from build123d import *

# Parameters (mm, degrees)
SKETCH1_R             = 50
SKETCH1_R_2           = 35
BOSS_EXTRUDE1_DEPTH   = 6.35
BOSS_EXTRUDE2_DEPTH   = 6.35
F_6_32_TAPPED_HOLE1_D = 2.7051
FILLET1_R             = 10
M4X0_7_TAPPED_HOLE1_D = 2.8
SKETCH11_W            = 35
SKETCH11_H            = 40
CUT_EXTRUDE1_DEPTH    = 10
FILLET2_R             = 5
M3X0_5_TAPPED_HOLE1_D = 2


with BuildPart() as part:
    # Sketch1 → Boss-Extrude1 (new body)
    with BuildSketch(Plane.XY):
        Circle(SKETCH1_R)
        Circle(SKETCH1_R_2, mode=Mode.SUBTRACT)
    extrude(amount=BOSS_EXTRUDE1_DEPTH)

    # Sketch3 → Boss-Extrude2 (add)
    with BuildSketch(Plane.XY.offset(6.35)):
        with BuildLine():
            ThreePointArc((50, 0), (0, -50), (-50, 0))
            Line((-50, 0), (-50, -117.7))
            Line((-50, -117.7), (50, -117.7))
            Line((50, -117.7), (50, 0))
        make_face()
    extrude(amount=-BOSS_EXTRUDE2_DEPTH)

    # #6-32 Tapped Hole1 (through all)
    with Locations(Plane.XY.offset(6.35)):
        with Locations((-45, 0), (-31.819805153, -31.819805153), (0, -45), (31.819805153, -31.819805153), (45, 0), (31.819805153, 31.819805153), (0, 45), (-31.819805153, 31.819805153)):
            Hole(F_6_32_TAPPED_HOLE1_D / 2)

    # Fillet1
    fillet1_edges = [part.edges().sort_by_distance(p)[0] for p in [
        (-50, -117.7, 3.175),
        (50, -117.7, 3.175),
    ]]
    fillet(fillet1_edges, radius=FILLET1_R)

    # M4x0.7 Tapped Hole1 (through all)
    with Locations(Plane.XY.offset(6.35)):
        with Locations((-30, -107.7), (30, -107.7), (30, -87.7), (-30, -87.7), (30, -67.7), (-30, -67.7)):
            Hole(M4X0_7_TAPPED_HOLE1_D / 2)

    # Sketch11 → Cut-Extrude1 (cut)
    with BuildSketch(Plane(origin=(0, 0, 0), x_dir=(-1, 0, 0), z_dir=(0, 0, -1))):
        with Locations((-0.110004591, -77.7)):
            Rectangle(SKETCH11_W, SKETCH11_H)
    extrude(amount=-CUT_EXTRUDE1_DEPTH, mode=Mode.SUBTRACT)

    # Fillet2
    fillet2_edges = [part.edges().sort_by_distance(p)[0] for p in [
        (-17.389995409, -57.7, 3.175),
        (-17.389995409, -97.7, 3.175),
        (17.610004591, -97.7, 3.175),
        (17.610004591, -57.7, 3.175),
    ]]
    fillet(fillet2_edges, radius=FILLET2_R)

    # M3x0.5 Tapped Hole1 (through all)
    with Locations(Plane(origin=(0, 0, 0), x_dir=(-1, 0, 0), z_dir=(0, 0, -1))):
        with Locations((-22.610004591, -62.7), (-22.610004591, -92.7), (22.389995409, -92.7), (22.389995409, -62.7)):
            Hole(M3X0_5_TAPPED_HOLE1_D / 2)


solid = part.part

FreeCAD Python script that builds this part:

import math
import FreeCAD as App
import Part
import Sketcher

V = App.Vector


def edges_at(feature, points):
    """Names of the edges that pass closest to the given points."""
    edges = feature.Shape.Edges
    near = lambda p: min(range(len(edges)), key=lambda i: edges[i].distToShape(Part.Vertex(*p))[0])
    return sorted({f"Edge{near(p) + 1}" for p in points})


def add_polygon(sketch, points):
    """Adds a closed chain of lines whose ends are joined by coincident constraints."""
    first, n = sketch.GeometryCount, len(points)
    for a, b in zip(points, points[1:] + points[:1]):
        sketch.addGeometry(Part.LineSegment(App.Vector(*a, 0), App.Vector(*b, 0)), False)
    for i in range(n):
        sketch.addConstraint(Sketcher.Constraint("Coincident", first + i, 2, first + (i + 1) % n, 1))

doc = App.newDocument("Part")
body = doc.addObject("PartDesign::Body", "Body")

sketch1 = body.newObject("Sketcher::SketchObject", "Sketch")
sketch1.AttachmentSupport = (doc.getObject("XY_Plane"), [""])
sketch1.MapMode = "FlatFace"
sketch1.addGeometry([
    Part.Circle(V(0, 0, 0), V(0, 0, 1), 50),
    Part.Circle(V(0, 0, 0), V(0, 0, 1), 35),
], False)
sketch1.addConstraint([
    Sketcher.Constraint("Coincident", 0, 3, -1, 1),
    Sketcher.Constraint("Coincident", 1, 3, -1, 1),
    Sketcher.Constraint("Diameter", 0, 100.0),
    Sketcher.Constraint("Diameter", 1, 70.0),
])
pad1 = body.newObject("PartDesign::Pad", "Pad")
pad1.Profile = sketch1
pad1.Length = 6.35

sketch2 = body.newObject("Sketcher::SketchObject", "Sketch001")
sketch2.AttachmentSupport = (doc.getObject("XY_Plane"), [""])
sketch2.MapMode = "FlatFace"
sketch2.AttachmentOffset = App.Placement(V(0, 0, 6.35), App.Rotation())
sketch2.addGeometry([
    Part.ArcOfCircle(Part.Circle(V(0, 0, 0), V(0, 0, 1), 50), math.radians(180), math.radians(360)),
    Part.LineSegment(V(-50, 0, 0), V(-50, -118, 0)),
    Part.LineSegment(V(-50, -118, 0), V(50, -118, 0)),
    Part.LineSegment(V(50, -118, 0), V(50, 0, 0)),
], False)
sketch2.addConstraint([
    Sketcher.Constraint("Tangent", 0, 1, 1, 1),
    Sketcher.Constraint("Coincident", 1, 2, 2, 1),
    Sketcher.Constraint("Coincident", 2, 2, 3, 1),
    Sketcher.Constraint("Tangent", 3, 2, 0, 2),
    Sketcher.Constraint("Vertical", 1),
    Sketcher.Constraint("Horizontal", 2),
    Sketcher.Constraint("Vertical", 3),
    Sketcher.Constraint("Coincident", 0, 3, -1, 1),
    Sketcher.Constraint("Radius", 0, 50.0),
    Sketcher.Constraint("DistanceY", 1, 2, 1, 1, 117.7),
])
pad2 = body.newObject("PartDesign::Pad", "Pad001")
pad2.Profile = sketch2
pad2.Length = 6.35
pad2.Reversed = True

sketch3 = body.newObject("Sketcher::SketchObject", "Sketch002")
sketch3.AttachmentSupport = (doc.getObject("XY_Plane"), [""])
sketch3.MapMode = "FlatFace"
sketch3.AttachmentOffset = App.Placement(V(0, 0, 6.35), App.Rotation())
sketch3.addGeometry([
    Part.Circle(V(-45, 0, 0), V(0, 0, 1), 1.4),
    Part.Circle(V(-31.8, -31.8, 0), V(0, 0, 1), 1.4),
    Part.Circle(V(0, -45, 0), V(0, 0, 1), 1.4),
    Part.Circle(V(31.8, -31.8, 0), V(0, 0, 1), 1.4),
    Part.Circle(V(45, 0, 0), V(0, 0, 1), 1.4),
    Part.Circle(V(31.8, 31.8, 0), V(0, 0, 1), 1.4),
    Part.Circle(V(0, 45, 0), V(0, 0, 1), 1.4),
    Part.Circle(V(-31.8, 31.8, 0), V(0, 0, 1), 1.4),
], False)
sketch3.addConstraint([
    Sketcher.Constraint("Equal", 0, 1),
    Sketcher.Constraint("Equal", 1, 2),
    Sketcher.Constraint("Equal", 2, 3),
    Sketcher.Constraint("Equal", 3, 4),
    Sketcher.Constraint("Equal", 4, 5),
    Sketcher.Constraint("Equal", 5, 6),
    Sketcher.Constraint("Equal", 6, 7),
    Sketcher.Constraint("Symmetric", 0, 3, 4, 3, -1, 1),
    Sketcher.Constraint("Symmetric", 1, 3, 5, 3, -1, 1),
    Sketcher.Constraint("Symmetric", 2, 3, 6, 3, -1, 1),
    Sketcher.Constraint("Symmetric", 3, 3, 7, 3, -1, 1),
    Sketcher.Constraint("Symmetric", 1, 3, 3, 3, -2),
    Sketcher.Constraint("PointOnObject", 0, 3, -1),
    Sketcher.Constraint("PointOnObject", 2, 3, -2),
    Sketcher.Constraint("DistanceX", 0, 3, -1, 1, 45.0),
    Sketcher.Constraint("DistanceY", 2, 3, -1, 1, 45.0),
    Sketcher.Constraint("Diameter", 0, 2.7051),
    Sketcher.Constraint("DistanceX", 1, 3, 3, 3, 63.63961),
    Sketcher.Constraint("DistanceY", 3, 3, 5, 3, 63.63961),
])
doc.recompute()
hole = body.newObject("PartDesign::Hole", "Hole")
hole.Profile = sketch3
hole.ThreadType = "None"
hole.Diameter = 2.7051
hole.DepthType = "ThroughAll"
doc.recompute()

fillet = body.newObject("PartDesign::Fillet", "Fillet")
fillet.Base = (hole, edges_at(hole, [(-50, -117.7, 3.175), (50, -117.7, 3.175)]))
fillet.Radius = 10

sketch4 = body.newObject("Sketcher::SketchObject", "Sketch003")
sketch4.AttachmentSupport = (doc.getObject("XY_Plane"), [""])
sketch4.MapMode = "FlatFace"
sketch4.AttachmentOffset = App.Placement(V(0, 0, 6.35), App.Rotation())
sketch4.addGeometry([
    Part.Circle(V(-30, -107.7, 0), V(0, 0, 1), 1.4),
    Part.Circle(V(30, -107.7, 0), V(0, 0, 1), 1.4),
    Part.Circle(V(30, -87.7, 0), V(0, 0, 1), 1.4),
    Part.Circle(V(-30, -87.7, 0), V(0, 0, 1), 1.4),
    Part.Circle(V(30, -67.7, 0), V(0, 0, 1), 1.4),
    Part.Circle(V(-30, -67.7, 0), V(0, 0, 1), 1.4),
], False)
sketch4.addConstraint([
    Sketcher.Constraint("Equal", 0, 1),
    Sketcher.Constraint("Equal", 1, 2),
    Sketcher.Constraint("Equal", 2, 3),
    Sketcher.Constraint("Equal", 3, 4),
    Sketcher.Constraint("Equal", 4, 5),
    Sketcher.Constraint("Symmetric", 0, 3, 1, 3, -2),
    Sketcher.Constraint("Symmetric", 2, 3, 3, 3, -2),
    Sketcher.Constraint("Symmetric", 4, 3, 5, 3, -2),
    Sketcher.Constraint("Vertical", 1, 3, 2, 3),
    Sketcher.Constraint("Vertical", 2, 3, 4, 3),
    Sketcher.Constraint("Diameter", 0, 2.8),
    Sketcher.Constraint("DistanceX", 0, 3, -1, 1, 30.0),
    Sketcher.Constraint("DistanceY", 1, 3, 2, 3, 20.0),
    Sketcher.Constraint("DistanceY", 2, 3, 4, 3, 20.0),
    Sketcher.Constraint("DistanceY", 0, 3, -1, 1, 107.7),
])
doc.recompute()
hole2 = body.newObject("PartDesign::Hole", "Hole001")
hole2.Profile = sketch4
hole2.ThreadType = "None"
hole2.Diameter = 2.8
hole2.DepthType = "ThroughAll"

sketch5 = body.newObject("Sketcher::SketchObject", "Sketch004")
sketch5.AttachmentSupport = (doc.getObject("XY_Plane"), [""])
sketch5.MapMode = "FlatFace"
add_polygon(sketch5, [(18, -58), (18, -98), (-17, -98), (-17, -58)])
sketch5.addConstraint([
    Sketcher.Constraint("Vertical", 0),
    Sketcher.Constraint("Horizontal", 1),
    Sketcher.Constraint("Vertical", 2),
    Sketcher.Constraint("Horizontal", 3),
    Sketcher.Constraint("DistanceX", 1, 2, 1, 1, 35.0),
    Sketcher.Constraint("DistanceY", 0, 2, 0, 1, 40.0),
    Sketcher.Constraint("DistanceY", 0, 2, -1, 1, 97.7),
    Sketcher.Constraint("DistanceX", -1, 1, 0, 2, 17.610005),
])
pocket1 = body.newObject("PartDesign::Pocket", "Pocket")
pocket1.Profile = sketch5
pocket1.Length = 10
pocket1.Reversed = True
doc.recompute()

fillet2 = body.newObject("PartDesign::Fillet", "Fillet001")
fillet2.Base = (pocket1, edges_at(pocket1, [
    (-17.39, -57.7, 3.175),
    (-17.39, -97.7, 3.175),
    (17.61, -97.7, 3.175),
    (17.61, -57.7, 3.175),
]))
fillet2.Radius = 5

sketch6 = body.newObject("Sketcher::SketchObject", "Sketch005")
sketch6.AttachmentSupport = (doc.getObject("XY_Plane"), [""])
sketch6.MapMode = "FlatFace"
sketch6.addGeometry([
    Part.Circle(V(22.6, -62.7, 0), V(0, 0, 1), 1),
    Part.Circle(V(22.6, -92.7, 0), V(0, 0, 1), 1),
    Part.Circle(V(-22.4, -92.7, 0), V(0, 0, 1), 1),
    Part.Circle(V(-22.4, -62.7, 0), V(0, 0, 1), 1),
], False)
sketch6.addConstraint([
    Sketcher.Constraint("Equal", 0, 1),
    Sketcher.Constraint("Equal", 1, 2),
    Sketcher.Constraint("Equal", 2, 3),
    Sketcher.Constraint("Horizontal", 1, 3, 2, 3),
    Sketcher.Constraint("Horizontal", 0, 3, 3, 3),
    Sketcher.Constraint("Vertical", 0, 3, 1, 3),
    Sketcher.Constraint("Vertical", 2, 3, 3, 3),
    Sketcher.Constraint("Diameter", 0, 2.0),
    Sketcher.Constraint("DistanceY", 1, 3, 0, 3, 30.0),
    Sketcher.Constraint("DistanceX", 2, 3, 1, 3, 45.0),
    Sketcher.Constraint("DistanceY", 0, 3, -1, 1, 62.7),
    Sketcher.Constraint("DistanceX", -1, 1, 0, 3, 22.610005),
])
doc.recompute()
hole3 = body.newObject("PartDesign::Hole", "Hole002")
hole3.Profile = sketch6
hole3.ThreadType = "None"
hole3.Diameter = 2
hole3.DepthType = "ThroughAll"
hole3.Reversed = True

doc.recompute()
